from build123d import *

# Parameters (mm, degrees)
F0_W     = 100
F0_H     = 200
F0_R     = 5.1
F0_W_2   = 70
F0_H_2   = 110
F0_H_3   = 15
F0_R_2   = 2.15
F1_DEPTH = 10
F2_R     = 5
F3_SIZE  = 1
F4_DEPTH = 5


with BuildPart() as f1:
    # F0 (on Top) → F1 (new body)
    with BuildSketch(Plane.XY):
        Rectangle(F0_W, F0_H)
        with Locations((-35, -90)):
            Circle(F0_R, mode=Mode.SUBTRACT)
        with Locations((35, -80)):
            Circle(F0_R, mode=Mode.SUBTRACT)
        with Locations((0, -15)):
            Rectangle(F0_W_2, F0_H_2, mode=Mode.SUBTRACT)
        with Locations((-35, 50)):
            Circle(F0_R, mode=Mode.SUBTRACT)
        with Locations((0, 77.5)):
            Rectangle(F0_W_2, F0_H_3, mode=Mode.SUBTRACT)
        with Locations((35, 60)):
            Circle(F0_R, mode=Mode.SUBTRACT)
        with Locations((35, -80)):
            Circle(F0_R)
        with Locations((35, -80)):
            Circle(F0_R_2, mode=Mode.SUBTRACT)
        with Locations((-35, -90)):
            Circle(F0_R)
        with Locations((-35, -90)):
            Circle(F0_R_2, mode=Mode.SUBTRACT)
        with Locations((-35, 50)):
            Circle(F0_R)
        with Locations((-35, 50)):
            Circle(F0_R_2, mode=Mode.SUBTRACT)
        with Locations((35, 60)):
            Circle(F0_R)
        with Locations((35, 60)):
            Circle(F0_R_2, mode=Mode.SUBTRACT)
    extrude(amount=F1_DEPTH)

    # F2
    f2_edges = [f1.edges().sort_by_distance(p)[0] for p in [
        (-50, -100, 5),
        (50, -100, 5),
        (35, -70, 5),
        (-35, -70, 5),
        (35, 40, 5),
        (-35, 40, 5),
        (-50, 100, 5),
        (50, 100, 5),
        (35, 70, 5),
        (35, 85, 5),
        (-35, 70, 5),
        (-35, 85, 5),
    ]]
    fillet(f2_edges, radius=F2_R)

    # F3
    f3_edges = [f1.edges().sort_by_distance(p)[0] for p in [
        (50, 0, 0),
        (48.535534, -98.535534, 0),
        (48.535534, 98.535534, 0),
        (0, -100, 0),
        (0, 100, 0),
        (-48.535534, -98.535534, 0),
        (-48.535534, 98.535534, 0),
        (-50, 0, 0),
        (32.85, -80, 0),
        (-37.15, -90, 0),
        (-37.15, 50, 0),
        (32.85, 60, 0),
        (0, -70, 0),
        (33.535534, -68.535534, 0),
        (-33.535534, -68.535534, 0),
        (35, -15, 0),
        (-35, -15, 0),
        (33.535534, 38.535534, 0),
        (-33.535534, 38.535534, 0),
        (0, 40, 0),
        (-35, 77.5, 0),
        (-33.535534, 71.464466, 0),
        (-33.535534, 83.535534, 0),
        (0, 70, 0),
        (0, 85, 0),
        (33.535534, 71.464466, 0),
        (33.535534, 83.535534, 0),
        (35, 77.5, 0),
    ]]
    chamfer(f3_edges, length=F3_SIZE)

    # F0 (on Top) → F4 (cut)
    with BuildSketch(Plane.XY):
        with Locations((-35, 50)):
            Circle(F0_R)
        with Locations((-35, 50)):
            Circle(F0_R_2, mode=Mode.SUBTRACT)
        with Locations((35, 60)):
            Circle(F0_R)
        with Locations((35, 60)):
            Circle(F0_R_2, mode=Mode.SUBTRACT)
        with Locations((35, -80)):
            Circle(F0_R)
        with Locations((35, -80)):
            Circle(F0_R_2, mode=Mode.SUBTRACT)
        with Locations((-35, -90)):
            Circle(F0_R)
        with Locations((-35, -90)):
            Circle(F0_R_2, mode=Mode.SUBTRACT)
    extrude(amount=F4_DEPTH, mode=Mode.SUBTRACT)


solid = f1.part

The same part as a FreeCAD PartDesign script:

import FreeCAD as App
import Part
import Sketcher
from FreeCAD import Vector


def edges_at(feature, points):
    """Names of the edges that pass closest to the given points."""
    edges = feature.Shape.Edges
    near = lambda p: min(range(len(edges)), key=lambda i: edges[i].distToShape(Part.Vertex(*p))[0])
    return sorted({f"Edge{near(p) + 1}" for p in points})


def add_polygon(sketch, points):
    """Adds a closed chain of lines whose ends are joined by coincident constraints."""
    first, n = sketch.GeometryCount, len(points)
    for a, b in zip(points, points[1:] + points[:1]):
        sketch.addGeometry(Part.LineSegment(App.Vector(*a, 0), App.Vector(*b, 0)), False)
    for i in range(n):
        sketch.addConstraint(Sketcher.Constraint("Coincident", first + i, 2, first + (i + 1) % n, 1))

doc = App.newDocument("Part")
body = doc.addObject("PartDesign::Body", "Body")

sketch1 = body.newObject("Sketcher::SketchObject", "Sketch")
sketch1.AttachmentSupport = (doc.getObject("XY_Plane"), [""])
sketch1.MapMode = "FlatFace"
add_polygon(sketch1, [(-50, 100), (-50, -100), (50, -100), (50, 100)])
sketch1.addGeometry(Part.Circle(Vector(-35, -90, 0), Vector(0, 0, 1), 2.1), False)
sketch1.addGeometry(Part.Circle(Vector(35, -80, 0), Vector(0, 0, 1), 2.1), False)
add_polygon(sketch1, [(35, -70), (-35, -70), (-35, 40), (35, 40)])
sketch1.addGeometry(Part.Circle(Vector(-35, 50, 0), Vector(0, 0, 1), 2.1), False)
add_polygon(sketch1, [(35, 70), (-35, 70), (-35, 85), (35, 85)])
sketch1.addGeometry(Part.Circle(Vector(35, 60, 0), Vector(0, 0, 1), 2.1), False)
sketch1.addConstraint([
    Sketcher.Constraint("Vertical", 0),
    Sketcher.Constraint("Horizontal", 1),
    Sketcher.Constraint("Vertical", 2),
    Sketcher.Constraint("Horizontal", 3),
    Sketcher.Constraint("Horizontal", 6),
    Sketcher.Constraint("Vertical", 7),
    Sketcher.Constraint("Horizontal", 8),
    Sketcher.Constraint("Vertical", 9),
    Sketcher.Constraint("Horizontal", 11),
    Sketcher.Constraint("Vertical", 12),
    Sketcher.Constraint("Horizontal", 13),
    Sketcher.Constraint("Vertical", 14),
    Sketcher.Constraint("Equal", 4, 5),
    Sketcher.Constraint("Equal", 5, 10),
    Sketcher.Constraint("Equal", 10, 15),
    Sketcher.Constraint("Symmetric", 0, 2, 2, 2, -1, 1),
    Sketcher.Constraint("Symmetric", 9, 2, 11, 2, -1, 1),
    Sketcher.Constraint("Vertical", 4, 3, 10, 3),
    Sketcher.Constraint("Vertical", 5, 3, 15, 3),
    Sketcher.Constraint("Vertical", 10, 3, 6, 2),
    Sketcher.Constraint("Vertical", 15, 3, 8, 2),
    Sketcher.Constraint("Vertical", 7, 2, 11, 2),
    Sketcher.Constraint("Vertical", 9, 2, 13, 2),
    Sketcher.Constraint("Diameter", 4, 4.3),
    Sketcher.Constraint("DistanceX", 1, 1, 1, 2, 100.0),
    Sketcher.Constraint("DistanceX", 6, 2, 6, 1, 70.0),
    Sketcher.Constraint("DistanceY", 0, 2, 0, 1, 200.0),
    Sketcher.Constraint("DistanceY", 7, 1, 7, 2, 110.0),
    Sketcher.Constraint("DistanceY", 12, 1, 12, 2, 15.0),
    Sketcher.Constraint("DistanceY", 4, 3, -1, 1, 90.0),
    Sketcher.Constraint("DistanceY", 5, 3, -1, 1, 80.0),
    Sketcher.Constraint("DistanceY", -1, 1, 10, 3, 50.0),
    Sketcher.Constraint("DistanceY", -1, 1, 15, 3, 60.0),
    Sketcher.Constraint("DistanceY", 6, 2, -1, 1, 70.0),
])
pad1 = body.newObject("PartDesign::Pad", "Pad")
pad1.Profile = sketch1
pad1.Length = 10
doc.recompute()

fillet = body.newObject("PartDesign::Fillet", "Fillet")
fillet.Base = (pad1, edges_at(pad1, [
    (-50, -100, 5),
    (50, -100, 5),
    (35, -70, 5),
    (-35, -70, 5),
    (35, 40, 5),
    (-35, 40, 5),
    (-50, 100, 5),
    (50, 100, 5),
    (35, 70, 5),
    (35, 85, 5),
    (-35, 70, 5),
    (-35, 85, 5),
]))
fillet.Radius = 5
doc.recompute()

chamfer = body.newObject("PartDesign::Chamfer", "Chamfer")
chamfer.Base = (fillet, edges_at(fillet, [
    (50, 0, 0),
    (48.536, -98.536, 0),
    (48.536, 98.536, 0),
    (0, -100, 0),
    (0, 100, 0),
    (-48.536, -98.536, 0),
    (-48.536, 98.536, 0),
    (-50, 0, 0),
    (32.85, -80, 0),
    (-37.15, -90, 0),
    (-37.15, 50, 0),
    (32.85, 60, 0),
    (0, -70, 0),
    (33.536, -68.536, 0),
    (-33.536, -68.536, 0),
    (35, -15, 0),
    (-35, -15, 0),
    (33.536, 38.536, 0),
    (-33.536, 38.536, 0),
    (0, 40, 0),
    (-35, 77.5, 0),
    (-33.536, 71.464, 0),
    (-33.536, 83.536, 0),
    (0, 70, 0),
    (0, 85, 0),
    (33.536, 71.464, 0),
    (33.536, 83.536, 0),
    (35, 77.5, 0),
]))
chamfer.Size = 1

sketch2 = body.newObject("Sketcher::SketchObject", "Sketch001")
sketch2.AttachmentSupport = (doc.getObject("XY_Plane"), [""])
sketch2.MapMode = "FlatFace"
sketch2.addGeometry([
    Part.Circle(Vector(-35, 50, 0), Vector(0, 0, 1), 5.1),
    Part.Circle(Vector(-35, 50, 0), Vector(0, 0, 1), 2.1),
    Part.Circle(Vector(35, 60, 0), Vector(0, 0, 1), 5.1),
    Part.Circle(Vector(35, 60, 0), Vector(0, 0, 1), 2.1),
    Part.Circle(Vector(35, -80, 0), Vector(0, 0, 1), 5.1),
    Part.Circle(Vector(35, -80, 0), Vector(0, 0, 1), 2.1),
    Part.Circle(Vector(-35, -90, 0), Vector(0, 0, 1), 5.1),
    Part.Circle(Vector(-35, -90, 0), Vector(0, 0, 1), 2.1),
], False)
sketch2.addConstraint([
    Sketcher.Constraint("Coincident", 1, 3, 0, 3),
    Sketcher.Constraint("Coincident", 3, 3, 2, 3),
    Sketcher.Constraint("Coincident", 5, 3, 4, 3),
    Sketcher.Constraint("Coincident", 7, 3, 6, 3),
    Sketcher.Constraint("Equal", 0, 2),
    Sketcher.Constraint("Equal", 1, 3),
    Sketcher.Constraint("Equal", 2, 4),
    Sketcher.Constraint("Equal", 3, 5),
    Sketcher.Constraint("Equal", 4, 6),
    Sketcher.Constraint("Equal", 5, 7),
    Sketcher.Constraint("Vertical", 3, 3, 4, 3),
    Sketcher.Constraint("Vertical", 1, 3, 6, 3),
    Sketcher.Constraint("Diameter", 0, 10.2),
    Sketcher.Constraint("Diameter", 1, 4.3),
    Sketcher.Constraint("DistanceX", 0, 3, -1, 1, 35.0),
    Sketcher.Constraint("DistanceY", -1, 1, 0, 3, 50.0),
    Sketcher.Constraint("DistanceX", -1, 1, 2, 3, 35.0),
    Sketcher.Constraint("DistanceY", -1, 1, 2, 3, 60.0),
    Sketcher.Constraint("DistanceY", 4, 3, -1, 1, 80.0),
    Sketcher.Constraint("DistanceY", 6, 3, -1, 1, 90.0),
])
pocket1 = body.newObject("PartDesign::Pocket", "Pocket")
pocket1.Profile = sketch2
pocket1.Length = 5
pocket1.Reversed = True

doc.recompute()
